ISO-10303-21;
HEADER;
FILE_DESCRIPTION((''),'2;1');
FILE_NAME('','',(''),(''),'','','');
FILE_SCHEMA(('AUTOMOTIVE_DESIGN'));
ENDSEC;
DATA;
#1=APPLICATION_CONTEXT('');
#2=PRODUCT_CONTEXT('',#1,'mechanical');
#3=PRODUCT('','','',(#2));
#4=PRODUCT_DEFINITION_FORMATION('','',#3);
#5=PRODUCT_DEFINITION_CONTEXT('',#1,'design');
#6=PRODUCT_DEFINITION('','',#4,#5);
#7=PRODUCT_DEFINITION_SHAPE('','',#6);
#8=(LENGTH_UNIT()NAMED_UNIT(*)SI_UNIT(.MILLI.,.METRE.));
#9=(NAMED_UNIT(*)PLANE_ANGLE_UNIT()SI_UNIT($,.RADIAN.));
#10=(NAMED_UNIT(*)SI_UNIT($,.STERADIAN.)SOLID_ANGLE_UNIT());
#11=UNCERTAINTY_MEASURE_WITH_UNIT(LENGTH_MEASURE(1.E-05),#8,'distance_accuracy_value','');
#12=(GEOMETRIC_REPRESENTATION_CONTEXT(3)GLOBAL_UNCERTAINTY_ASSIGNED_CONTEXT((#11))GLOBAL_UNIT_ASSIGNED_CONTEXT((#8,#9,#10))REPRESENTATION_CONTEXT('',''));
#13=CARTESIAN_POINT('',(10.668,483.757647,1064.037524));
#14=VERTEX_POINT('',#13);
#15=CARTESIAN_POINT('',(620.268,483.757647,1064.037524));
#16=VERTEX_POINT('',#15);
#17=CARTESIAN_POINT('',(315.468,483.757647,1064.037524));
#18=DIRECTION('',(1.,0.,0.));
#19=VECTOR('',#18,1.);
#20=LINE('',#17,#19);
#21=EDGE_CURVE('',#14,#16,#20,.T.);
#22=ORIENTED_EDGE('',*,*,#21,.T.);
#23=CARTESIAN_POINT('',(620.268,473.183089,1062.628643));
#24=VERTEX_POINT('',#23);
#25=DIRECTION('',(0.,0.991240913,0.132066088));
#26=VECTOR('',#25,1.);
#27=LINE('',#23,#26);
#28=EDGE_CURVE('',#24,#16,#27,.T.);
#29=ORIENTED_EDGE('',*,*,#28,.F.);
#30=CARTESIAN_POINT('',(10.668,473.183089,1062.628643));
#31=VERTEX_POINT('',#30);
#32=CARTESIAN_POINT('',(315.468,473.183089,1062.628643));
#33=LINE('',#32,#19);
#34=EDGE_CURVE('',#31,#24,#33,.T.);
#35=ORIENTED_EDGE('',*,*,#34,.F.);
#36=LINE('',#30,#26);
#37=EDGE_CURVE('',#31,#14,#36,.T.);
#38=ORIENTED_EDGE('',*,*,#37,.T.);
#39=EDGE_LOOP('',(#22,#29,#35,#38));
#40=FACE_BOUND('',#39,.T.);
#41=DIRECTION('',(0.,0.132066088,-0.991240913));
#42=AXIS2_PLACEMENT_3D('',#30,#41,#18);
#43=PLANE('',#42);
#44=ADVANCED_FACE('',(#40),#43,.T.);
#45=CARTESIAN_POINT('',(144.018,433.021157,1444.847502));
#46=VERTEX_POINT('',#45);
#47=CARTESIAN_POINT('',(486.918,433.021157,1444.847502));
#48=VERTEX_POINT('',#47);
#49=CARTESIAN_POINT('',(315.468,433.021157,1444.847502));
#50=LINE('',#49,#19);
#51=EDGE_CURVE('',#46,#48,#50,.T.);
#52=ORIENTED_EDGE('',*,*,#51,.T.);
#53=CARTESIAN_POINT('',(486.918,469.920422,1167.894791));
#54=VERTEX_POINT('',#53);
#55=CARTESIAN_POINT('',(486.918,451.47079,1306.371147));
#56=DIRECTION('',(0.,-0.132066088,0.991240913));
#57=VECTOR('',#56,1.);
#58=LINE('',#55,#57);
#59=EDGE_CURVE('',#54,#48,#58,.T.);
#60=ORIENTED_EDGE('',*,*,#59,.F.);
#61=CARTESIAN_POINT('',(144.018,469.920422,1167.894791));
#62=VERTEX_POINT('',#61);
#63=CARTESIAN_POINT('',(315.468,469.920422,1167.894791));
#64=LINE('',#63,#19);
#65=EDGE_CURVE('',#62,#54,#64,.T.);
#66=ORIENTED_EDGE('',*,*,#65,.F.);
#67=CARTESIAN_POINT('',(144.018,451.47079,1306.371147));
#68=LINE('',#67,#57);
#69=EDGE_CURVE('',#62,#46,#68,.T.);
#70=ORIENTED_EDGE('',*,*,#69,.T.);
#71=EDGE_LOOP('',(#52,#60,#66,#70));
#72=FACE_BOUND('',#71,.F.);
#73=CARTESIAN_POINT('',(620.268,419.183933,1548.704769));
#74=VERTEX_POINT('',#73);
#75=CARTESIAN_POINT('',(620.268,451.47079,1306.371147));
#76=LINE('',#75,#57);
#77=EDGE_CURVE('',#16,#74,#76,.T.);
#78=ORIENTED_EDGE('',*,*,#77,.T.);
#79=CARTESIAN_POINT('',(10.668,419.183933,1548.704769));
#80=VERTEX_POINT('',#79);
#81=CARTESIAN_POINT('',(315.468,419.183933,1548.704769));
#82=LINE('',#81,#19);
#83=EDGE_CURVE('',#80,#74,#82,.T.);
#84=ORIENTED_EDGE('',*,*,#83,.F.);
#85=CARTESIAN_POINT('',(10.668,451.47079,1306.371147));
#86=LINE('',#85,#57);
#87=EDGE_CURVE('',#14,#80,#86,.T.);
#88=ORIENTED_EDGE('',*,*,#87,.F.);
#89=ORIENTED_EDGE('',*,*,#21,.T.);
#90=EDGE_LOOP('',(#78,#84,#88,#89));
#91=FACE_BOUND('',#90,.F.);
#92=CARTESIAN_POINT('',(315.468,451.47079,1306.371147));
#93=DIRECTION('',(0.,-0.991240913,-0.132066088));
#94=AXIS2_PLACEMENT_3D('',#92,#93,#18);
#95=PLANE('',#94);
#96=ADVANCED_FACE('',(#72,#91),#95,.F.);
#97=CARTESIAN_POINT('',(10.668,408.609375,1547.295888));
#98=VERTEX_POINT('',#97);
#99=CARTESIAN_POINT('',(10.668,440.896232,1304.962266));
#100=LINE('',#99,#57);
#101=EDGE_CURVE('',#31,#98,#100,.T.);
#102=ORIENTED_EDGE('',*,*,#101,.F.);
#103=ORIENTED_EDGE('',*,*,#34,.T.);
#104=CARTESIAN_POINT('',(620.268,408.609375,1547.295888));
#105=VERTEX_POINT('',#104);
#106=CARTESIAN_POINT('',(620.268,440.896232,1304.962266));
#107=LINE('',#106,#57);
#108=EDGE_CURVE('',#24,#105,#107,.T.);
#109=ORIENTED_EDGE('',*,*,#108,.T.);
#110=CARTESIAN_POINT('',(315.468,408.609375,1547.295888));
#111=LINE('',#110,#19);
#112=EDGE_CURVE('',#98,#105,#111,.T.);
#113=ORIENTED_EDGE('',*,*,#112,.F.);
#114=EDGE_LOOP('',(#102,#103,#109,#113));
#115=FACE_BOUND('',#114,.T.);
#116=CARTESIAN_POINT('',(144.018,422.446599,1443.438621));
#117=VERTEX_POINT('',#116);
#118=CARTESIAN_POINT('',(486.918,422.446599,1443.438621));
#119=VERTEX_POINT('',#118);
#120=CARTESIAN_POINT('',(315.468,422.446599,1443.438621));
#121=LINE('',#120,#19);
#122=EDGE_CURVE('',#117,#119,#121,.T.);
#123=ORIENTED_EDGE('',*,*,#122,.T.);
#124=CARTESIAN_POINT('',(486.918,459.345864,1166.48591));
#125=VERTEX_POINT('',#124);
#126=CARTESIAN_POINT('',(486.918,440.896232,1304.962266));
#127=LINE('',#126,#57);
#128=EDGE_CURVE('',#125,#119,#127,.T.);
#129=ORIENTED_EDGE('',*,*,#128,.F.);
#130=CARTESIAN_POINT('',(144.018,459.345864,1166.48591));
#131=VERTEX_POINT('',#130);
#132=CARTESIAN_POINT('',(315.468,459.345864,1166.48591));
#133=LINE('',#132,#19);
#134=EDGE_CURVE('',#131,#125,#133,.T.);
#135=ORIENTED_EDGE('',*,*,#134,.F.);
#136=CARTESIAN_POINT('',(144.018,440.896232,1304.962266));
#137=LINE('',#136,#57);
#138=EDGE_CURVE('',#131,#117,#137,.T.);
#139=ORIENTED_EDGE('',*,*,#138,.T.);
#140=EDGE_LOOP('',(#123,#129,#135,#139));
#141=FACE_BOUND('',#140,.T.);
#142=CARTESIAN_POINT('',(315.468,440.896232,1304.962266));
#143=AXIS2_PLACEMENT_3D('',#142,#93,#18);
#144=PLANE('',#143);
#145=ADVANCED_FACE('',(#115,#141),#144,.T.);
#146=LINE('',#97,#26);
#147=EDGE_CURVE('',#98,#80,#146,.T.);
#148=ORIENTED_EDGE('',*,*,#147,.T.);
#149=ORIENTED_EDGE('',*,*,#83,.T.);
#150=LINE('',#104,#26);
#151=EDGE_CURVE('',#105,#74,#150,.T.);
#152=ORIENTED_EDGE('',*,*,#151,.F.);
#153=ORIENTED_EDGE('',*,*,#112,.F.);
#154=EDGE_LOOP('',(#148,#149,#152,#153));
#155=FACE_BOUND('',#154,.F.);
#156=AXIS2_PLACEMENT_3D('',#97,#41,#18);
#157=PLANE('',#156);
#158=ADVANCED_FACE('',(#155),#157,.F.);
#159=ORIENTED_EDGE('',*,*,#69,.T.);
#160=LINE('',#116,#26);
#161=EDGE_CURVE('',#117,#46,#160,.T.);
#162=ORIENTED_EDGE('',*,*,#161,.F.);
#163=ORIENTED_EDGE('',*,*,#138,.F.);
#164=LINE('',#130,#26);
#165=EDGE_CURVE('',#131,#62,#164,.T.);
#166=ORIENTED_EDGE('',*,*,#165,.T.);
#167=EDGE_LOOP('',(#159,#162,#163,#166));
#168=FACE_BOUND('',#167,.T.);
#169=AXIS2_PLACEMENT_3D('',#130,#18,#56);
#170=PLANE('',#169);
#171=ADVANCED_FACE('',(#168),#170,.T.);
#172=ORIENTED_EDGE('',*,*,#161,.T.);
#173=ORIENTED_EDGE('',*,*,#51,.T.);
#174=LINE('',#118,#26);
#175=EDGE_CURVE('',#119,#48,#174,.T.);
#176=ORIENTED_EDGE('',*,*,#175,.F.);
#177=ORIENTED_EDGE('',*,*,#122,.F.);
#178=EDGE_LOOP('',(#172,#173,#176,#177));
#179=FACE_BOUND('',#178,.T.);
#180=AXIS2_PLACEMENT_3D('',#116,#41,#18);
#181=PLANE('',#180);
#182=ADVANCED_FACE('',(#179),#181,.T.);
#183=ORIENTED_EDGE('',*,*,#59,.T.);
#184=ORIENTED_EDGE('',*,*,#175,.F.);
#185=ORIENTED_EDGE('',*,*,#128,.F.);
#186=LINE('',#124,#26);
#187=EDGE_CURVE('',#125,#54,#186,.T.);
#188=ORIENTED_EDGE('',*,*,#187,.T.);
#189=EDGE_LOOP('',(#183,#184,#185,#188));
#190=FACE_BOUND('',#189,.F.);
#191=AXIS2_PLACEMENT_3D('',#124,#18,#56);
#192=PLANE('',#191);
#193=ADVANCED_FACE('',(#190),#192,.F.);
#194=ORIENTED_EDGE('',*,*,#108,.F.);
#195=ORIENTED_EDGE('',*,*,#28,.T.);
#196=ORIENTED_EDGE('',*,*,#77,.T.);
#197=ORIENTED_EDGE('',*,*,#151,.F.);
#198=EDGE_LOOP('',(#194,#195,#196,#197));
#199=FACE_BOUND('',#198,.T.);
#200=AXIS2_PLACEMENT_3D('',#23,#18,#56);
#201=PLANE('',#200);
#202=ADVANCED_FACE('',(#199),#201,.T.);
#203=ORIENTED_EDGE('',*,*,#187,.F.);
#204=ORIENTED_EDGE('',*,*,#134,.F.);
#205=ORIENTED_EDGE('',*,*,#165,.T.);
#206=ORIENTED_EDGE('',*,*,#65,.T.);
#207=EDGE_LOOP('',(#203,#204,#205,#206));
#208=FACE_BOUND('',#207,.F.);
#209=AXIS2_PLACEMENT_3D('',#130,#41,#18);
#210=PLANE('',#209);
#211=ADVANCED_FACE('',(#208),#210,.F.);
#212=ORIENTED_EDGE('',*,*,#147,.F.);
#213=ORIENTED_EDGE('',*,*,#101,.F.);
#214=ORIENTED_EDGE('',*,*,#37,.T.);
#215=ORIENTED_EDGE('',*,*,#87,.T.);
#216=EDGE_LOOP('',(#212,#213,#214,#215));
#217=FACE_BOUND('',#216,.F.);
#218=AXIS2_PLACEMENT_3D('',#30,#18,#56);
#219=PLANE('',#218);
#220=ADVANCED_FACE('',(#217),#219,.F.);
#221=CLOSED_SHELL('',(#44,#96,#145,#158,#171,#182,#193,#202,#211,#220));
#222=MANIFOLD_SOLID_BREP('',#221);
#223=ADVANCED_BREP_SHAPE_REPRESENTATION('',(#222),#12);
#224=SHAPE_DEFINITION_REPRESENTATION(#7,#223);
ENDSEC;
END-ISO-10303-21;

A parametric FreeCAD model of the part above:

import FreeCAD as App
import Part
import Sketcher

V = App.Vector
Q = App.Units.Quantity

doc = App.newDocument("Part")
body = doc.addObject("PartDesign::Body", "Body")

# Sketch on an angled plane
sketch1 = doc.addObject("Sketcher::SketchObject", "Sketch")
body.addObject(sketch1)
sketch1.Placement = App.Placement(V(144.018, 482.388776, 1169.557267), App.Rotation(V(1, 0, 0), V(0, -0.132066088, 0.991240913), V(0, -0.991240913, -0.132066088), "ZXY"))
sketch1.addGeometry(Part.LineSegment(V(0, 279, 0), V(0, 0, 0)), False)
sketch1.addGeometry(Part.LineSegment(V(0, 0, 0), V(343, 0, 0)), False)
sketch1.addGeometry(Part.LineSegment(V(343, 0, 0), V(343, 279, 0)), False)
sketch1.addGeometry(Part.LineSegment(V(343, 279, 0), V(0, 279, 0)), False)
sketch1.addConstraint(Sketcher.Constraint("Coincident", 0, 2, 1, 1))
sketch1.addConstraint(Sketcher.Constraint("Coincident", 1, 2, 2, 1))
sketch1.addConstraint(Sketcher.Constraint("Coincident", 2, 2, 3, 1))
sketch1.addConstraint(Sketcher.Constraint("Coincident", 3, 2, 0, 1))
sketch1.addConstraint(Sketcher.Constraint("Vertical", 0))
sketch1.addConstraint(Sketcher.Constraint("Horizontal", 1))
sketch1.addConstraint(Sketcher.Constraint("Vertical", 2))
sketch1.addConstraint(Sketcher.Constraint("Horizontal", 3))
sketch1.addConstraint(Sketcher.Constraint("Coincident", 0, 2, -1, 1))
sketch1.addConstraint(Sketcher.Constraint("DistanceY", 0, 2, 0, 1, Q("11 in")))
sketch1.addConstraint(Sketcher.Constraint("DistanceX", 1, 1, 1, 2, Q("13.5 in")))
pad1 = doc.addObject("PartDesign::Pad", "Pad")
body.addObject(pad1)
pad1.Profile = sketch1
pad1.Length = Q("0.42 in")
pad1.Reversed = True
body2 = doc.addObject("PartDesign::Body", "Body001")

# Sketch on an angled plane
sketch2 = doc.addObject("Sketcher::SketchObject", "Sketch001")
body2.addObject(sketch2)
sketch2.Placement = App.Placement(V(10.668, 496.226, 1065.7), App.Rotation(V(1, 0, 0), V(0, -0.132066088, 0.991240913), V(0, -0.991240913, -0.132066088), "ZXY"))
sketch2.addGeometry(Part.LineSegment(V(0, 489, 0), V(0, 0, 0)), False)
sketch2.addGeometry(Part.LineSegment(V(0, 0, 0), V(610, 0, 0)), False)
sketch2.addGeometry(Part.LineSegment(V(610, 0, 0), V(610, 489, 0)), False)
sketch2.addGeometry(Part.LineSegment(V(610, 489, 0), V(0, 489, 0)), False)
sketch2.addConstraint(Sketcher.Constraint("Coincident", 0, 2, 1, 1))
sketch2.addConstraint(Sketcher.Constraint("Coincident", 1, 2, 2, 1))
sketch2.addConstraint(Sketcher.Constraint("Coincident", 2, 2, 3, 1))
sketch2.addConstraint(Sketcher.Constraint("Coincident", 3, 2, 0, 1))
sketch2.addConstraint(Sketcher.Constraint("Vertical", 0))
sketch2.addConstraint(Sketcher.Constraint("Horizontal", 1))
sketch2.addConstraint(Sketcher.Constraint("Vertical", 2))
sketch2.addConstraint(Sketcher.Constraint("Horizontal", 3))
sketch2.addConstraint(Sketcher.Constraint("Coincident", 0, 2, -1, 1))
sketch2.addConstraint(Sketcher.Constraint("DistanceX", 1, 1, 1, 2, Q("24 in")))
sketch2.addConstraint(Sketcher.Constraint("DistanceY", 0, 2, 0, 1, Q("19.25 in")))
pad2 = doc.addObject("PartDesign::Pad", "Pad001")
body2.addObject(pad2)
pad2.Profile = sketch2
pad2.Length = Q("0.42 in")
pad2.Reversed = True
doc.recompute()

boolean = doc.addObject("PartDesign::Boolean", "Boolean")
body2.addObject(boolean)
boolean.Type = "Cut"
boolean.addObjects([body])
body3 = doc.addObject("PartDesign::Body", "Body002")
doc.recompute()

body2.Placement = App.Placement(V(0, -23.042911, -3.071357), App.Rotation(V(0, 0, 1), 0))
boolean2 = doc.addObject("PartDesign::Boolean", "Boolean001")
body3.addObject(boolean2)
boolean2.Type = "Fuse"
boolean2.addObjects([body2])

doc.recompute()
